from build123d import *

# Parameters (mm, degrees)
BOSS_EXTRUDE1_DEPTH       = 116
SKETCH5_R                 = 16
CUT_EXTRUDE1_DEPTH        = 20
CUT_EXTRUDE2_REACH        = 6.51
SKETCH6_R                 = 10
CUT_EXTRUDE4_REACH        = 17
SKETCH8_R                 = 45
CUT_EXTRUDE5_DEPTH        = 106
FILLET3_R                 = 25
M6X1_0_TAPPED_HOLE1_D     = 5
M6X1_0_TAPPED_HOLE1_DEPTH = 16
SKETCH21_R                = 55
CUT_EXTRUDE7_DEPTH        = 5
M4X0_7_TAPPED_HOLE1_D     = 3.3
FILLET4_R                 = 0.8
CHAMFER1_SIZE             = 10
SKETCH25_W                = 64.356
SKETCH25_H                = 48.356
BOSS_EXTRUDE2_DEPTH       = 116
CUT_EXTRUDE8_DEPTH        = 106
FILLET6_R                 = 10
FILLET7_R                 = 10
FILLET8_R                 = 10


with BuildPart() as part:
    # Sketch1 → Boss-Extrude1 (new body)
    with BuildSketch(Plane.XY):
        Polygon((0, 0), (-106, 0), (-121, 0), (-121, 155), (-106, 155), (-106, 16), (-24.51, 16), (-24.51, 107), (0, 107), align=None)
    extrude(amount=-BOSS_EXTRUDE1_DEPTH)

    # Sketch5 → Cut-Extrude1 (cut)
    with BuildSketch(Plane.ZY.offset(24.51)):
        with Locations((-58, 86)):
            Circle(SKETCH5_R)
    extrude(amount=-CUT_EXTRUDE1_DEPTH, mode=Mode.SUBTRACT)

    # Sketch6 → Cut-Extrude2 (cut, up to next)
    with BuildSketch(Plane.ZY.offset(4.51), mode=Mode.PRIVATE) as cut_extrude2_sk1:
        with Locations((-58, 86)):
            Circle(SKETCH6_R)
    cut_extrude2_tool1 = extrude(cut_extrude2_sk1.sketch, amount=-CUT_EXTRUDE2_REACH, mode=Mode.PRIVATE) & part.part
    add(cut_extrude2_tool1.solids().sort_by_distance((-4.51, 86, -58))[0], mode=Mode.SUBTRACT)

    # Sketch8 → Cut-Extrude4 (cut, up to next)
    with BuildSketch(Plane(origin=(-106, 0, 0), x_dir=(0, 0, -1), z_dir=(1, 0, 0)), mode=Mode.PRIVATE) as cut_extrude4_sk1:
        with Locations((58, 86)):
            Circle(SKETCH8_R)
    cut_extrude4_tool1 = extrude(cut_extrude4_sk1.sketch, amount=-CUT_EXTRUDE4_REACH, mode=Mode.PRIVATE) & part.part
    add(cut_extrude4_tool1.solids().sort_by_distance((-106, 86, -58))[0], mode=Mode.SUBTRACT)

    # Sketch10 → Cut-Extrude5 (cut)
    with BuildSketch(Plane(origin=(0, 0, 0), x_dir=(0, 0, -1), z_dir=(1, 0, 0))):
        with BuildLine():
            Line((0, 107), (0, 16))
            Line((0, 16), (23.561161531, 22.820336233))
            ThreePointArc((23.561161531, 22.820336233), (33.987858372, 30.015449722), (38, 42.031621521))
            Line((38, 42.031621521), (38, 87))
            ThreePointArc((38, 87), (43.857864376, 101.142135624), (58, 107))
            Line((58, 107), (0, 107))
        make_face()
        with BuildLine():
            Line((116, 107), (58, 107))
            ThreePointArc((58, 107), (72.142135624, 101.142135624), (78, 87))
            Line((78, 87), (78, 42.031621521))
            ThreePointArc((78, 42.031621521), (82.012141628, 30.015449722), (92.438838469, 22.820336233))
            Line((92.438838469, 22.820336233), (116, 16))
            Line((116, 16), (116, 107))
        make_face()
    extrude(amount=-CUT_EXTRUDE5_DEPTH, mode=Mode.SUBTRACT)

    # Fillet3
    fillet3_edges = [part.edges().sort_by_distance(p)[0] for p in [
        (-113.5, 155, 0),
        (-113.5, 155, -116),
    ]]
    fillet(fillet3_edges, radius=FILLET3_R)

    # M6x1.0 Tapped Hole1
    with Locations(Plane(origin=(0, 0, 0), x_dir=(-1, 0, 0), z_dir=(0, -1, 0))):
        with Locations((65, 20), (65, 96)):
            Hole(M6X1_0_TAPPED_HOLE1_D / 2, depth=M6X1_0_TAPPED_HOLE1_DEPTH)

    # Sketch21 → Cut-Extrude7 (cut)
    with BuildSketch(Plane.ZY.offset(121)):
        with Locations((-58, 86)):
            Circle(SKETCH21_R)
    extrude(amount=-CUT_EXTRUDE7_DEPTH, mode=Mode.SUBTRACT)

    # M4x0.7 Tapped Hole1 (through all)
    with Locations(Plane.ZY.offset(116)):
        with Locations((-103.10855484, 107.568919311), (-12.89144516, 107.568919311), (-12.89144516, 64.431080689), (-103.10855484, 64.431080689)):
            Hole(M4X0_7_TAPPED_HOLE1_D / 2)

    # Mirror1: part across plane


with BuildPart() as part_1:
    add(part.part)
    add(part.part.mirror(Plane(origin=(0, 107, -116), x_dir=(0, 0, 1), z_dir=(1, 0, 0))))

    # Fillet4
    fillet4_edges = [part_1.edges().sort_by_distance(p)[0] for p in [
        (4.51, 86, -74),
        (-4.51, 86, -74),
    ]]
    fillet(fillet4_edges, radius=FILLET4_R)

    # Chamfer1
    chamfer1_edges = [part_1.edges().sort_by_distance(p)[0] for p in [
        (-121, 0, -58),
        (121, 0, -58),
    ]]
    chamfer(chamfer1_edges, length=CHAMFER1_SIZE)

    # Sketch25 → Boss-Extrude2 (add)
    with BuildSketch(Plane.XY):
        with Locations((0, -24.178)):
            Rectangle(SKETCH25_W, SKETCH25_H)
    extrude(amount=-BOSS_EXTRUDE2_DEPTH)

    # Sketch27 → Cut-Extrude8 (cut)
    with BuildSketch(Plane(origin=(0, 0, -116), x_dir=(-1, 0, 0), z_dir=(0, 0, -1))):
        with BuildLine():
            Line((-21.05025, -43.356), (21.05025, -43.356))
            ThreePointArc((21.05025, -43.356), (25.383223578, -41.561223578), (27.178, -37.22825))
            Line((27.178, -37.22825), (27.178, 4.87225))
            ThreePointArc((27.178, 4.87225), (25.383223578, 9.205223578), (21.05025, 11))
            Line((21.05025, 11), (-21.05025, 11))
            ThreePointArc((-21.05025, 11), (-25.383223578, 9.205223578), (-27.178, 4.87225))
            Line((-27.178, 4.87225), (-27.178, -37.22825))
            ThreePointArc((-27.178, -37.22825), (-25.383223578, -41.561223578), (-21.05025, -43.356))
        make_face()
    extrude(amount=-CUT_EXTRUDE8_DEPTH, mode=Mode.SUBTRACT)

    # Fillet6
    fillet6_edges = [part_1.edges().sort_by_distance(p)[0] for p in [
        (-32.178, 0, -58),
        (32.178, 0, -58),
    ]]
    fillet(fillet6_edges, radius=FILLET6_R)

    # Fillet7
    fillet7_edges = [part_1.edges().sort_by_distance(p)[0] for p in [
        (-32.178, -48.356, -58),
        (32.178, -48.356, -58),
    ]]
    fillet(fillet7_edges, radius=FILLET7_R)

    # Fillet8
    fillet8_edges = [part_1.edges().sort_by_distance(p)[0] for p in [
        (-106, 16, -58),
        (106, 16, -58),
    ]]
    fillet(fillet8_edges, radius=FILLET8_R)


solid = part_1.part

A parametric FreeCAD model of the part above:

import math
import FreeCAD as App
import Part
import Sketcher


def edges_at(feature, points):
    """Names of the edges that pass closest to the given points."""
    edges = feature.Shape.Edges
    near = lambda p: min(range(len(edges)), key=lambda i: edges[i].distToShape(Part.Vertex(*p))[0])
    return sorted({f"Edge{near(p) + 1}" for p in points})

doc = App.newDocument("Part")
body = doc.addObject("PartDesign::Body", "Body")

# Sketch on XY plane
sketch1 = doc.addObject("Sketcher::SketchObject", "Sketch")
body.addObject(sketch1)
sketch1.AttachmentSupport = (doc.XY_Plane, [""])
sketch1.MapMode = "FlatFace"
sketch1.addGeometry(Part.LineSegment(App.Vector(-121, 0, 0), App.Vector(0, 0, 0)), False)
sketch1.addGeometry(Part.LineSegment(App.Vector(0, 0, 0), App.Vector(0, 107, 0)), False)
sketch1.addGeometry(Part.LineSegment(App.Vector(0, 107, 0), App.Vector(-25, 107, 0)), False)
sketch1.addGeometry(Part.LineSegment(App.Vector(-25, 107, 0), App.Vector(-25, 16, 0)), False)
sketch1.addGeometry(Part.LineSegment(App.Vector(-25, 16, 0), App.Vector(-106, 16, 0)), False)
sketch1.addGeometry(Part.LineSegment(App.Vector(-106, 16, 0), App.Vector(-106, 155, 0)), False)
sketch1.addGeometry(Part.LineSegment(App.Vector(-106, 155, 0), App.Vector(-121, 155, 0)), False)
sketch1.addGeometry(Part.LineSegment(App.Vector(-121, 155, 0), App.Vector(-121, 0, 0)), False)
sketch1.addConstraint(Sketcher.Constraint("Coincident", 0, 2, 1, 1))
sketch1.addConstraint(Sketcher.Constraint("Coincident", 1, 2, 2, 1))
sketch1.addConstraint(Sketcher.Constraint("Coincident", 2, 2, 3, 1))
sketch1.addConstraint(Sketcher.Constraint("Coincident", 3, 2, 4, 1))
sketch1.addConstraint(Sketcher.Constraint("Coincident", 4, 2, 5, 1))
sketch1.addConstraint(Sketcher.Constraint("Coincident", 5, 2, 6, 1))
sketch1.addConstraint(Sketcher.Constraint("Coincident", 6, 2, 7, 1))
sketch1.addConstraint(Sketcher.Constraint("Coincident", 7, 2, 0, 1))
sketch1.addConstraint(Sketcher.Constraint("Horizontal", 0))
sketch1.addConstraint(Sketcher.Constraint("Vertical", 1))
sketch1.addConstraint(Sketcher.Constraint("Horizontal", 2))
sketch1.addConstraint(Sketcher.Constraint("Vertical", 3))
sketch1.addConstraint(Sketcher.Constraint("Horizontal", 4))
sketch1.addConstraint(Sketcher.Constraint("Vertical", 5))
sketch1.addConstraint(Sketcher.Constraint("Horizontal", 6))
sketch1.addConstraint(Sketcher.Constraint("Vertical", 7))
sketch1.addConstraint(Sketcher.Constraint("Coincident", 0, 2, -1, 1))
sketch1.addConstraint(Sketcher.Constraint("DistanceX", 0, 1, 0, 2, 121.0))
sketch1.addConstraint(Sketcher.Constraint("DistanceX", 6, 2, 6, 1, 15.0))
sketch1.addConstraint(Sketcher.Constraint("DistanceY", 1, 1, 1, 2, 107.0))
sketch1.addConstraint(Sketcher.Constraint("DistanceY", 3, 2, 3, 1, 91.0))
sketch1.addConstraint(Sketcher.Constraint("DistanceY", 5, 1, 5, 2, 139.0))
sketch1.addConstraint(Sketcher.Constraint("DistanceX", 2, 2, 2, 1, 24.51))
pad1 = doc.addObject("PartDesign::Pad", "Pad")
body.addObject(pad1)
pad1.Profile = sketch1
pad1.Length = 116
pad1.Reversed = True

# Sketch on YZ plane
sketch2 = doc.addObject("Sketcher::SketchObject", "Sketch001")
body.addObject(sketch2)
sketch2.AttachmentSupport = (doc.YZ_Plane, [""])
sketch2.MapMode = "FlatFace"
sketch2.AttachmentOffset = App.Placement(App.Vector(0, 0, -24.51), App.Rotation())
sketch2.addGeometry(Part.Circle(App.Vector(86, -58, 0), App.Vector(0, 0, 1), 16), False)
sketch2.addConstraint(Sketcher.Constraint("Diameter", 0, 32.0))
sketch2.addConstraint(Sketcher.Constraint("DistanceX", -1, 1, 0, 3, 86.0))
sketch2.addConstraint(Sketcher.Constraint("DistanceY", 0, 3, -1, 1, 58.0))
pocket1 = doc.addObject("PartDesign::Pocket", "Pocket")
body.addObject(pocket1)
pocket1.Profile = sketch2
pocket1.Length = 20
pocket1.Reversed = True

# Sketch on YZ plane
sketch3 = doc.addObject("Sketcher::SketchObject", "Sketch002")
body.addObject(sketch3)
sketch3.AttachmentSupport = (doc.YZ_Plane, [""])
sketch3.MapMode = "FlatFace"
sketch3.AttachmentOffset = App.Placement(App.Vector(0, 0, -4.51), App.Rotation())
sketch3.addGeometry(Part.Circle(App.Vector(86, -58, 0), App.Vector(0, 0, 1), 10), False)
sketch3.addConstraint(Sketcher.Constraint("Diameter", 0, 20.0))
sketch3.addConstraint(Sketcher.Constraint("DistanceX", -1, 1, 0, 3, 86.0))
sketch3.addConstraint(Sketcher.Constraint("DistanceY", 0, 3, -1, 1, 58.0))
pocket2 = doc.addObject("PartDesign::Pocket", "Pocket001")
body.addObject(pocket2)
pocket2.Profile = sketch3
pocket2.Type = "UpToFirst"
pocket2.Reversed = True

# Sketch on YZ plane
sketch4 = doc.addObject("Sketcher::SketchObject", "Sketch003")
body.addObject(sketch4)
sketch4.AttachmentSupport = (doc.YZ_Plane, [""])
sketch4.MapMode = "FlatFace"
sketch4.AttachmentOffset = App.Placement(App.Vector(0, 0, -106), App.Rotation())
sketch4.addGeometry(Part.Circle(App.Vector(86, -58, 0), App.Vector(0, 0, 1), 45), False)
sketch4.addConstraint(Sketcher.Constraint("Diameter", 0, 90.0))
sketch4.addConstraint(Sketcher.Constraint("DistanceX", -1, 1, 0, 3, 86.0))
sketch4.addConstraint(Sketcher.Constraint("DistanceY", 0, 3, -1, 1, 58.0))
pocket3 = doc.addObject("PartDesign::Pocket", "Pocket002")
body.addObject(pocket3)
pocket3.Profile = sketch4
pocket3.Type = "UpToFirst"

# Sketch on YZ plane
sketch5 = doc.addObject("Sketcher::SketchObject", "Sketch004")
body.addObject(sketch5)
sketch5.AttachmentSupport = (doc.YZ_Plane, [""])
sketch5.MapMode = "FlatFace"
sketch5.addGeometry(Part.LineSegment(App.Vector(107, 0, 0), App.Vector(16, 0, 0)), False)
sketch5.addGeometry(Part.LineSegment(App.Vector(16, 0, 0), App.Vector(23, -24, 0)), False)
sketch5.addGeometry(Part.ArcOfCircle(Part.Circle(App.Vector(42, -18, 0), App.Vector(0, 0, 1), 20), math.radians(-164), math.radians(-90)), False)
sketch5.addGeometry(Part.LineSegment(App.Vector(42, -38, 0), App.Vector(87, -38, 0)), False)
sketch5.addGeometry(Part.ArcOfCircle(Part.Circle(App.Vector(87, -58, 0), App.Vector(0, 0, 1), 20), math.radians(0), math.radians(90)), False)
sketch5.addGeometry(Part.LineSegment(App.Vector(107, -58, 0), App.Vector(107, 0, 0)), False)
sketch5.addGeometry(Part.LineSegment(App.Vector(107, -116, 0), App.Vector(107, -58, 0)), False)
sketch5.addGeometry(Part.ArcOfCircle(Part.Circle(App.Vector(87, -58, 0), App.Vector(0, 0, 1), 20), math.radians(-90), math.radians(0)), False)
sketch5.addGeometry(Part.LineSegment(App.Vector(87, -78, 0), App.Vector(42, -78, 0)), False)
sketch5.addGeometry(Part.ArcOfCircle(Part.Circle(App.Vector(42, -98, 0), App.Vector(0, 0, 1), 20), math.radians(90), math.radians(164)), False)
sketch5.addGeometry(Part.LineSegment(App.Vector(23, -92, 0), App.Vector(16, -116, 0)), False)
sketch5.addGeometry(Part.LineSegment(App.Vector(16, -116, 0), App.Vector(107, -116, 0)), False)
sketch5.addConstraint(Sketcher.Constraint("Coincident", 0, 2, 1, 1))
sketch5.addConstraint(Sketcher.Constraint("Tangent", 1, 2, 2, 1))
sketch5.addConstraint(Sketcher.Constraint("Tangent", 2, 2, 3, 1))
sketch5.addConstraint(Sketcher.Constraint("Tangent", 3, 2, 4, 2))
sketch5.addConstraint(Sketcher.Constraint("Tangent", 4, 1, 5, 1))
sketch5.addConstraint(Sketcher.Constraint("Coincident", 5, 2, 0, 1))
sketch5.addConstraint(Sketcher.Constraint("Tangent", 6, 2, 7, 2))
sketch5.addConstraint(Sketcher.Constraint("Tangent", 7, 1, 8, 1))
sketch5.addConstraint(Sketcher.Constraint("Tangent", 8, 2, 9, 1))
sketch5.addConstraint(Sketcher.Constraint("Tangent", 9, 2, 10, 1))
sketch5.addConstraint(Sketcher.Constraint("Coincident", 10, 2, 11, 1))
sketch5.addConstraint(Sketcher.Constraint("Coincident", 11, 2, 6, 1))
sketch5.addConstraint(Sketcher.Constraint("Horizontal", 0))
sketch5.addConstraint(Sketcher.Constraint("Horizontal", 3))
sketch5.addConstraint(Sketcher.Constraint("Vertical", 5))
sketch5.addConstraint(Sketcher.Constraint("Vertical", 6))
sketch5.addConstraint(Sketcher.Constraint("Horizontal", 8))
sketch5.addConstraint(Sketcher.Constraint("Horizontal", 11))
sketch5.addConstraint(Sketcher.Constraint("Coincident", 7, 3, 4, 3))
sketch5.addConstraint(Sketcher.Constraint("Equal", 2, 4))
sketch5.addConstraint(Sketcher.Constraint("Equal", 4, 7))
sketch5.addConstraint(Sketcher.Constraint("Equal", 7, 9))
sketch5.addConstraint(Sketcher.Constraint("PointOnObject", 0, 2, -1))
sketch5.addConstraint(Sketcher.Constraint("Vertical", 2, 3, 9, 3))
sketch5.addConstraint(Sketcher.Constraint("Vertical", 1, 2, 9, 2))
sketch5.addConstraint(Sketcher.Constraint("Vertical", 0, 2, 10, 2))
sketch5.addConstraint(Sketcher.Constraint("Radius", 2, 20.0))
sketch5.addConstraint(Sketcher.Constraint("DistanceX", 0, 2, 0, 1, 91.0))
sketch5.addConstraint(Sketcher.Constraint("DistanceY", 5, 1, 5, 2, 58.0))
sketch5.addConstraint(Sketcher.Constraint("DistanceX", -1, 1, 4, 3, 87.0))
sketch5.addConstraint(Sketcher.Constraint("DistanceX", 3, 1, 3, 2, 44.968378))
pocket4 = doc.addObject("PartDesign::Pocket", "Pocket003")
body.addObject(pocket4)
pocket4.Profile = sketch5
pocket4.Length = 106
doc.recompute()

fillet = doc.addObject("PartDesign::Fillet", "Fillet")
body.addObject(fillet)
fillet.Base = (pocket4, edges_at(pocket4, [(-113.5, 155, 0), (-113.5, 155, -116)]))
fillet.Radius = 25

# Sketch on XZ plane
sketch6 = doc.addObject("Sketcher::SketchObject", "Sketch005")
body.addObject(sketch6)
sketch6.AttachmentSupport = (doc.XZ_Plane, [""])
sketch6.MapMode = "FlatFace"
sketch6.addGeometry(Part.Circle(App.Vector(-65, -20, 0), App.Vector(0, 0, 1), 2.5), False)
sketch6.addGeometry(Part.Circle(App.Vector(-65, -96, 0), App.Vector(0, 0, 1), 2.5), False)
sketch6.addConstraint(Sketcher.Constraint("Equal", 0, 1))
sketch6.addConstraint(Sketcher.Constraint("Vertical", 0, 3, 1, 3))
sketch6.addConstraint(Sketcher.Constraint("Diameter", 0, 5.0))
sketch6.addConstraint(Sketcher.Constraint("DistanceX", 0, 3, -1, 1, 65.0))
sketch6.addConstraint(Sketcher.Constraint("DistanceY", 0, 3, -1, 1, 20.0))
sketch6.addConstraint(Sketcher.Constraint("DistanceY", 1, 3, -1, 1, 96.0))
doc.recompute()
hole = doc.addObject("PartDesign::Hole", "Hole")
body.addObject(hole)
hole.Profile = sketch6
hole.ThreadType = "None"
hole.Diameter = 5
hole.DepthType = "Dimension"
hole.Depth = 16
hole.DrillPoint = "Flat"

# Sketch on YZ plane
sketch7 = doc.addObject("Sketcher::SketchObject", "Sketch006")
body.addObject(sketch7)
sketch7.AttachmentSupport = (doc.YZ_Plane, [""])
sketch7.MapMode = "FlatFace"
sketch7.AttachmentOffset = App.Placement(App.Vector(0, 0, -121), App.Rotation())
sketch7.addGeometry(Part.Circle(App.Vector(86, -58, 0), App.Vector(0, 0, 1), 55), False)
sketch7.addConstraint(Sketcher.Constraint("Diameter", 0, 110.0))
sketch7.addConstraint(Sketcher.Constraint("DistanceX", -1, 1, 0, 3, 86.0))
sketch7.addConstraint(Sketcher.Constraint("DistanceY", 0, 3, -1, 1, 58.0))
pocket5 = doc.addObject("PartDesign::Pocket", "Pocket004")
body.addObject(pocket5)
pocket5.Profile = sketch7
pocket5.Length = 5
pocket5.Reversed = True

# Sketch on YZ plane
sketch8 = doc.addObject("Sketcher::SketchObject", "Sketch007")
body.addObject(sketch8)
sketch8.AttachmentSupport = (doc.YZ_Plane, [""])
sketch8.MapMode = "FlatFace"
sketch8.AttachmentOffset = App.Placement(App.Vector(0, 0, -116), App.Rotation())
sketch8.addGeometry(Part.Circle(App.Vector(107.6, -103.1, 0), App.Vector(0, 0, 1), 1.6), False)
sketch8.addGeometry(Part.Circle(App.Vector(107.6, -12.9, 0), App.Vector(0, 0, 1), 1.6), False)
sketch8.addGeometry(Part.Circle(App.Vector(64.4, -12.9, 0), App.Vector(0, 0, 1), 1.6), False)
sketch8.addGeometry(Part.Circle(App.Vector(64.4, -103.1, 0), App.Vector(0, 0, 1), 1.6), False)
sketch8.addConstraint(Sketcher.Constraint("Equal", 0, 1))
sketch8.addConstraint(Sketcher.Constraint("Equal", 1, 2))
sketch8.addConstraint(Sketcher.Constraint("Equal", 2, 3))
sketch8.addConstraint(Sketcher.Constraint("Horizontal", 1, 3, 2, 3))
sketch8.addConstraint(Sketcher.Constraint("Horizontal", 0, 3, 3, 3))
sketch8.addConstraint(Sketcher.Constraint("Vertical", 0, 3, 1, 3))
sketch8.addConstraint(Sketcher.Constraint("Vertical", 2, 3, 3, 3))
sketch8.addConstraint(Sketcher.Constraint("Diameter", 0, 3.3))
sketch8.addConstraint(Sketcher.Constraint("DistanceX", -1, 1, 0, 3, 107.568919))
sketch8.addConstraint(Sketcher.Constraint("DistanceX", -1, 1, 2, 3, 64.431081))
sketch8.addConstraint(Sketcher.Constraint("DistanceY", 0, 3, 1, 3, 90.21711))
sketch8.addConstraint(Sketcher.Constraint("DistanceY", 0, 3, -1, 1, 103.108555))
doc.recompute()
hole2 = doc.addObject("PartDesign::Hole", "Hole001")
body.addObject(hole2)
hole2.Profile = sketch8
hole2.ThreadType = "None"
hole2.Diameter = 3.3
hole2.DepthType = "ThroughAll"
hole2.Reversed = True
body2 = doc.addObject("PartDesign::Body", "Body001")
doc.recompute()

body2.BaseFeature = body
doc.recompute()

mirroring = doc.addObject("Part::Mirroring", "Mirroring")
mirroring.Source = body
mirroring.Base = App.Vector(0, 107, -116)
mirroring.Normal = App.Vector(1, 0, 0)
body3 = doc.addObject("PartDesign::Body", "Body002")
body3.BaseFeature = mirroring
boolean = doc.addObject("PartDesign::Boolean", "Boolean")
body2.addObject(boolean)
boolean.Type = "Fuse"
boolean.addObjects([body3])
doc.recompute()

fillet2 = doc.addObject("PartDesign::Fillet", "Fillet001")
body2.addObject(fillet2)
fillet2.Base = (boolean, edges_at(boolean, [(4.51, 86, -74), (-4.51, 86, -74)]))
fillet2.Radius = 0.8
doc.recompute()

chamfer = doc.addObject("PartDesign::Chamfer", "Chamfer")
body2.addObject(chamfer)
chamfer.Base = (fillet2, edges_at(fillet2, [(-121, 0, -58), (121, 0, -58)]))
chamfer.Size = 10

# Sketch on XY plane
sketch9 = doc.addObject("Sketcher::SketchObject", "Sketch008")
body2.addObject(sketch9)
sketch9.AttachmentSupport = (doc.getObject("XY_Plane001"), [""])
sketch9.MapMode = "FlatFace"
sketch9.addGeometry(Part.LineSegment(App.Vector(-32, 0, 0), App.Vector(-32, -48, 0)), False)
sketch9.addGeometry(Part.LineSegment(App.Vector(-32, -48, 0), App.Vector(32, -48, 0)), False)
sketch9.addGeometry(Part.LineSegment(App.Vector(32, -48, 0), App.Vector(32, 0, 0)), False)
sketch9.addGeometry(Part.LineSegment(App.Vector(32, 0, 0), App.Vector(-32, 0, 0)), False)
sketch9.addConstraint(Sketcher.Constraint("Coincident", 0, 2, 1, 1))
sketch9.addConstraint(Sketcher.Constraint("Coincident", 1, 2, 2, 1))
sketch9.addConstraint(Sketcher.Constraint("Coincident", 2, 2, 3, 1))
sketch9.addConstraint(Sketcher.Constraint("Coincident", 3, 2, 0, 1))
sketch9.addConstraint(Sketcher.Constraint("Vertical", 0))
sketch9.addConstraint(Sketcher.Constraint("Horizontal", 1))
sketch9.addConstraint(Sketcher.Constraint("Vertical", 2))
sketch9.addConstraint(Sketcher.Constraint("Horizontal", 3))
sketch9.addConstraint(Sketcher.Constraint("Symmetric", 2, 2, 3, 2, -1, 1))
sketch9.addConstraint(Sketcher.Constraint("DistanceX", 1, 1, 1, 2, 64.356))
sketch9.addConstraint(Sketcher.Constraint("DistanceY", 0, 2, 0, 1, 48.356))
pad2 = doc.addObject("PartDesign::Pad", "Pad001")
body2.addObject(pad2)
pad2.Profile = sketch9
pad2.Length = 116
pad2.Reversed = True

# Sketch on XY plane
sketch10 = doc.addObject("Sketcher::SketchObject", "Sketch009")
body2.addObject(sketch10)
sketch10.AttachmentSupport = (doc.getObject("XY_Plane001"), [""])
sketch10.MapMode = "FlatFace"
sketch10.AttachmentOffset = App.Placement(App.Vector(0, 0, -116), App.Rotation())
sketch10.addGeometry(Part.LineSegment(App.Vector(21, -43, 0), App.Vector(-21, -43, 0)), False)
sketch10.addGeometry(Part.ArcOfCircle(Part.Circle(App.Vector(-21, -37, 0), App.Vector(0, 0, 1), 6), math.radians(-180), math.radians(-90)), False)
sketch10.addGeometry(Part.LineSegment(App.Vector(-27, -37, 0), App.Vector(-27, 5, 0)), False)
sketch10.addGeometry(Part.ArcOfCircle(Part.Circle(App.Vector(-21, 5, 0), App.Vector(0, 0, 1), 6), math.radians(90), math.radians(180)), False)
sketch10.addGeometry(Part.LineSegment(App.Vector(-21, 11, 0), App.Vector(21, 11, 0)), False)
sketch10.addGeometry(Part.ArcOfCircle(Part.Circle(App.Vector(21, 5, 0), App.Vector(0, 0, 1), 6), math.radians(0), math.radians(90)), False)
sketch10.addGeometry(Part.LineSegment(App.Vector(27, 5, 0), App.Vector(27, -37, 0)), False)
sketch10.addGeometry(Part.ArcOfCircle(Part.Circle(App.Vector(21, -37, 0), App.Vector(0, 0, 1), 6), math.radians(-90), math.radians(0)), False)
sketch10.addConstraint(Sketcher.Constraint("Tangent", 0, 2, 1, 2))
sketch10.addConstraint(Sketcher.Constraint("Tangent", 1, 1, 2, 1))
sketch10.addConstraint(Sketcher.Constraint("Tangent", 2, 2, 3, 2))
sketch10.addConstraint(Sketcher.Constraint("Tangent", 3, 1, 4, 1))
sketch10.addConstraint(Sketcher.Constraint("Tangent", 4, 2, 5, 2))
sketch10.addConstraint(Sketcher.Constraint("Tangent", 5, 1, 6, 1))
sketch10.addConstraint(Sketcher.Constraint("Tangent", 6, 2, 7, 2))
sketch10.addConstraint(Sketcher.Constraint("Tangent", 7, 1, 0, 1))
sketch10.addConstraint(Sketcher.Constraint("Horizontal", 0))
sketch10.addConstraint(Sketcher.Constraint("Vertical", 2))
sketch10.addConstraint(Sketcher.Constraint("Horizontal", 4))
sketch10.addConstraint(Sketcher.Constraint("Vertical", 6))
sketch10.addConstraint(Sketcher.Constraint("Equal", 1, 3))
sketch10.addConstraint(Sketcher.Constraint("Equal", 3, 5))
sketch10.addConstraint(Sketcher.Constraint("Equal", 5, 7))
sketch10.addConstraint(Sketcher.Constraint("Equal", 4, 2))
sketch10.addConstraint(Sketcher.Constraint("DistanceY", -1, 1, 3, 1, 11.0))
sketch10.addConstraint(Sketcher.Constraint("Radius", 1, 6.12775))
sketch10.addConstraint(Sketcher.Constraint("DistanceX", 0, 2, 0, 1, 42.1005))
sketch10.addConstraint(Sketcher.Constraint("DistanceX", 1, 1, -1, 1, 27.178))
pocket6 = doc.addObject("PartDesign::Pocket", "Pocket005")
body2.addObject(pocket6)
pocket6.Profile = sketch10
pocket6.Length = 106
pocket6.Reversed = True
doc.recompute()

fillet3 = doc.addObject("PartDesign::Fillet", "Fillet002")
body2.addObject(fillet3)
fillet3.Base = (pocket6, edges_at(pocket6, [(-32.178, 0, -58), (32.178, 0, -58)]))
fillet3.Radius = 10
doc.recompute()

fillet4 = doc.addObject("PartDesign::Fillet", "Fillet003")
body2.addObject(fillet4)
fillet4.Base = (fillet3, edges_at(fillet3, [(-32.178, -48.356, -58), (32.178, -48.356, -58)]))
fillet4.Radius = 10
doc.recompute()

fillet5 = doc.addObject("PartDesign::Fillet", "Fillet004")
body2.addObject(fillet5)
fillet5.Base = (fillet4, edges_at(fillet4, [(-106, 16, -58), (106, 16, -58)]))
fillet5.Radius = 10
mirroring.Visibility = False

doc.recompute()
